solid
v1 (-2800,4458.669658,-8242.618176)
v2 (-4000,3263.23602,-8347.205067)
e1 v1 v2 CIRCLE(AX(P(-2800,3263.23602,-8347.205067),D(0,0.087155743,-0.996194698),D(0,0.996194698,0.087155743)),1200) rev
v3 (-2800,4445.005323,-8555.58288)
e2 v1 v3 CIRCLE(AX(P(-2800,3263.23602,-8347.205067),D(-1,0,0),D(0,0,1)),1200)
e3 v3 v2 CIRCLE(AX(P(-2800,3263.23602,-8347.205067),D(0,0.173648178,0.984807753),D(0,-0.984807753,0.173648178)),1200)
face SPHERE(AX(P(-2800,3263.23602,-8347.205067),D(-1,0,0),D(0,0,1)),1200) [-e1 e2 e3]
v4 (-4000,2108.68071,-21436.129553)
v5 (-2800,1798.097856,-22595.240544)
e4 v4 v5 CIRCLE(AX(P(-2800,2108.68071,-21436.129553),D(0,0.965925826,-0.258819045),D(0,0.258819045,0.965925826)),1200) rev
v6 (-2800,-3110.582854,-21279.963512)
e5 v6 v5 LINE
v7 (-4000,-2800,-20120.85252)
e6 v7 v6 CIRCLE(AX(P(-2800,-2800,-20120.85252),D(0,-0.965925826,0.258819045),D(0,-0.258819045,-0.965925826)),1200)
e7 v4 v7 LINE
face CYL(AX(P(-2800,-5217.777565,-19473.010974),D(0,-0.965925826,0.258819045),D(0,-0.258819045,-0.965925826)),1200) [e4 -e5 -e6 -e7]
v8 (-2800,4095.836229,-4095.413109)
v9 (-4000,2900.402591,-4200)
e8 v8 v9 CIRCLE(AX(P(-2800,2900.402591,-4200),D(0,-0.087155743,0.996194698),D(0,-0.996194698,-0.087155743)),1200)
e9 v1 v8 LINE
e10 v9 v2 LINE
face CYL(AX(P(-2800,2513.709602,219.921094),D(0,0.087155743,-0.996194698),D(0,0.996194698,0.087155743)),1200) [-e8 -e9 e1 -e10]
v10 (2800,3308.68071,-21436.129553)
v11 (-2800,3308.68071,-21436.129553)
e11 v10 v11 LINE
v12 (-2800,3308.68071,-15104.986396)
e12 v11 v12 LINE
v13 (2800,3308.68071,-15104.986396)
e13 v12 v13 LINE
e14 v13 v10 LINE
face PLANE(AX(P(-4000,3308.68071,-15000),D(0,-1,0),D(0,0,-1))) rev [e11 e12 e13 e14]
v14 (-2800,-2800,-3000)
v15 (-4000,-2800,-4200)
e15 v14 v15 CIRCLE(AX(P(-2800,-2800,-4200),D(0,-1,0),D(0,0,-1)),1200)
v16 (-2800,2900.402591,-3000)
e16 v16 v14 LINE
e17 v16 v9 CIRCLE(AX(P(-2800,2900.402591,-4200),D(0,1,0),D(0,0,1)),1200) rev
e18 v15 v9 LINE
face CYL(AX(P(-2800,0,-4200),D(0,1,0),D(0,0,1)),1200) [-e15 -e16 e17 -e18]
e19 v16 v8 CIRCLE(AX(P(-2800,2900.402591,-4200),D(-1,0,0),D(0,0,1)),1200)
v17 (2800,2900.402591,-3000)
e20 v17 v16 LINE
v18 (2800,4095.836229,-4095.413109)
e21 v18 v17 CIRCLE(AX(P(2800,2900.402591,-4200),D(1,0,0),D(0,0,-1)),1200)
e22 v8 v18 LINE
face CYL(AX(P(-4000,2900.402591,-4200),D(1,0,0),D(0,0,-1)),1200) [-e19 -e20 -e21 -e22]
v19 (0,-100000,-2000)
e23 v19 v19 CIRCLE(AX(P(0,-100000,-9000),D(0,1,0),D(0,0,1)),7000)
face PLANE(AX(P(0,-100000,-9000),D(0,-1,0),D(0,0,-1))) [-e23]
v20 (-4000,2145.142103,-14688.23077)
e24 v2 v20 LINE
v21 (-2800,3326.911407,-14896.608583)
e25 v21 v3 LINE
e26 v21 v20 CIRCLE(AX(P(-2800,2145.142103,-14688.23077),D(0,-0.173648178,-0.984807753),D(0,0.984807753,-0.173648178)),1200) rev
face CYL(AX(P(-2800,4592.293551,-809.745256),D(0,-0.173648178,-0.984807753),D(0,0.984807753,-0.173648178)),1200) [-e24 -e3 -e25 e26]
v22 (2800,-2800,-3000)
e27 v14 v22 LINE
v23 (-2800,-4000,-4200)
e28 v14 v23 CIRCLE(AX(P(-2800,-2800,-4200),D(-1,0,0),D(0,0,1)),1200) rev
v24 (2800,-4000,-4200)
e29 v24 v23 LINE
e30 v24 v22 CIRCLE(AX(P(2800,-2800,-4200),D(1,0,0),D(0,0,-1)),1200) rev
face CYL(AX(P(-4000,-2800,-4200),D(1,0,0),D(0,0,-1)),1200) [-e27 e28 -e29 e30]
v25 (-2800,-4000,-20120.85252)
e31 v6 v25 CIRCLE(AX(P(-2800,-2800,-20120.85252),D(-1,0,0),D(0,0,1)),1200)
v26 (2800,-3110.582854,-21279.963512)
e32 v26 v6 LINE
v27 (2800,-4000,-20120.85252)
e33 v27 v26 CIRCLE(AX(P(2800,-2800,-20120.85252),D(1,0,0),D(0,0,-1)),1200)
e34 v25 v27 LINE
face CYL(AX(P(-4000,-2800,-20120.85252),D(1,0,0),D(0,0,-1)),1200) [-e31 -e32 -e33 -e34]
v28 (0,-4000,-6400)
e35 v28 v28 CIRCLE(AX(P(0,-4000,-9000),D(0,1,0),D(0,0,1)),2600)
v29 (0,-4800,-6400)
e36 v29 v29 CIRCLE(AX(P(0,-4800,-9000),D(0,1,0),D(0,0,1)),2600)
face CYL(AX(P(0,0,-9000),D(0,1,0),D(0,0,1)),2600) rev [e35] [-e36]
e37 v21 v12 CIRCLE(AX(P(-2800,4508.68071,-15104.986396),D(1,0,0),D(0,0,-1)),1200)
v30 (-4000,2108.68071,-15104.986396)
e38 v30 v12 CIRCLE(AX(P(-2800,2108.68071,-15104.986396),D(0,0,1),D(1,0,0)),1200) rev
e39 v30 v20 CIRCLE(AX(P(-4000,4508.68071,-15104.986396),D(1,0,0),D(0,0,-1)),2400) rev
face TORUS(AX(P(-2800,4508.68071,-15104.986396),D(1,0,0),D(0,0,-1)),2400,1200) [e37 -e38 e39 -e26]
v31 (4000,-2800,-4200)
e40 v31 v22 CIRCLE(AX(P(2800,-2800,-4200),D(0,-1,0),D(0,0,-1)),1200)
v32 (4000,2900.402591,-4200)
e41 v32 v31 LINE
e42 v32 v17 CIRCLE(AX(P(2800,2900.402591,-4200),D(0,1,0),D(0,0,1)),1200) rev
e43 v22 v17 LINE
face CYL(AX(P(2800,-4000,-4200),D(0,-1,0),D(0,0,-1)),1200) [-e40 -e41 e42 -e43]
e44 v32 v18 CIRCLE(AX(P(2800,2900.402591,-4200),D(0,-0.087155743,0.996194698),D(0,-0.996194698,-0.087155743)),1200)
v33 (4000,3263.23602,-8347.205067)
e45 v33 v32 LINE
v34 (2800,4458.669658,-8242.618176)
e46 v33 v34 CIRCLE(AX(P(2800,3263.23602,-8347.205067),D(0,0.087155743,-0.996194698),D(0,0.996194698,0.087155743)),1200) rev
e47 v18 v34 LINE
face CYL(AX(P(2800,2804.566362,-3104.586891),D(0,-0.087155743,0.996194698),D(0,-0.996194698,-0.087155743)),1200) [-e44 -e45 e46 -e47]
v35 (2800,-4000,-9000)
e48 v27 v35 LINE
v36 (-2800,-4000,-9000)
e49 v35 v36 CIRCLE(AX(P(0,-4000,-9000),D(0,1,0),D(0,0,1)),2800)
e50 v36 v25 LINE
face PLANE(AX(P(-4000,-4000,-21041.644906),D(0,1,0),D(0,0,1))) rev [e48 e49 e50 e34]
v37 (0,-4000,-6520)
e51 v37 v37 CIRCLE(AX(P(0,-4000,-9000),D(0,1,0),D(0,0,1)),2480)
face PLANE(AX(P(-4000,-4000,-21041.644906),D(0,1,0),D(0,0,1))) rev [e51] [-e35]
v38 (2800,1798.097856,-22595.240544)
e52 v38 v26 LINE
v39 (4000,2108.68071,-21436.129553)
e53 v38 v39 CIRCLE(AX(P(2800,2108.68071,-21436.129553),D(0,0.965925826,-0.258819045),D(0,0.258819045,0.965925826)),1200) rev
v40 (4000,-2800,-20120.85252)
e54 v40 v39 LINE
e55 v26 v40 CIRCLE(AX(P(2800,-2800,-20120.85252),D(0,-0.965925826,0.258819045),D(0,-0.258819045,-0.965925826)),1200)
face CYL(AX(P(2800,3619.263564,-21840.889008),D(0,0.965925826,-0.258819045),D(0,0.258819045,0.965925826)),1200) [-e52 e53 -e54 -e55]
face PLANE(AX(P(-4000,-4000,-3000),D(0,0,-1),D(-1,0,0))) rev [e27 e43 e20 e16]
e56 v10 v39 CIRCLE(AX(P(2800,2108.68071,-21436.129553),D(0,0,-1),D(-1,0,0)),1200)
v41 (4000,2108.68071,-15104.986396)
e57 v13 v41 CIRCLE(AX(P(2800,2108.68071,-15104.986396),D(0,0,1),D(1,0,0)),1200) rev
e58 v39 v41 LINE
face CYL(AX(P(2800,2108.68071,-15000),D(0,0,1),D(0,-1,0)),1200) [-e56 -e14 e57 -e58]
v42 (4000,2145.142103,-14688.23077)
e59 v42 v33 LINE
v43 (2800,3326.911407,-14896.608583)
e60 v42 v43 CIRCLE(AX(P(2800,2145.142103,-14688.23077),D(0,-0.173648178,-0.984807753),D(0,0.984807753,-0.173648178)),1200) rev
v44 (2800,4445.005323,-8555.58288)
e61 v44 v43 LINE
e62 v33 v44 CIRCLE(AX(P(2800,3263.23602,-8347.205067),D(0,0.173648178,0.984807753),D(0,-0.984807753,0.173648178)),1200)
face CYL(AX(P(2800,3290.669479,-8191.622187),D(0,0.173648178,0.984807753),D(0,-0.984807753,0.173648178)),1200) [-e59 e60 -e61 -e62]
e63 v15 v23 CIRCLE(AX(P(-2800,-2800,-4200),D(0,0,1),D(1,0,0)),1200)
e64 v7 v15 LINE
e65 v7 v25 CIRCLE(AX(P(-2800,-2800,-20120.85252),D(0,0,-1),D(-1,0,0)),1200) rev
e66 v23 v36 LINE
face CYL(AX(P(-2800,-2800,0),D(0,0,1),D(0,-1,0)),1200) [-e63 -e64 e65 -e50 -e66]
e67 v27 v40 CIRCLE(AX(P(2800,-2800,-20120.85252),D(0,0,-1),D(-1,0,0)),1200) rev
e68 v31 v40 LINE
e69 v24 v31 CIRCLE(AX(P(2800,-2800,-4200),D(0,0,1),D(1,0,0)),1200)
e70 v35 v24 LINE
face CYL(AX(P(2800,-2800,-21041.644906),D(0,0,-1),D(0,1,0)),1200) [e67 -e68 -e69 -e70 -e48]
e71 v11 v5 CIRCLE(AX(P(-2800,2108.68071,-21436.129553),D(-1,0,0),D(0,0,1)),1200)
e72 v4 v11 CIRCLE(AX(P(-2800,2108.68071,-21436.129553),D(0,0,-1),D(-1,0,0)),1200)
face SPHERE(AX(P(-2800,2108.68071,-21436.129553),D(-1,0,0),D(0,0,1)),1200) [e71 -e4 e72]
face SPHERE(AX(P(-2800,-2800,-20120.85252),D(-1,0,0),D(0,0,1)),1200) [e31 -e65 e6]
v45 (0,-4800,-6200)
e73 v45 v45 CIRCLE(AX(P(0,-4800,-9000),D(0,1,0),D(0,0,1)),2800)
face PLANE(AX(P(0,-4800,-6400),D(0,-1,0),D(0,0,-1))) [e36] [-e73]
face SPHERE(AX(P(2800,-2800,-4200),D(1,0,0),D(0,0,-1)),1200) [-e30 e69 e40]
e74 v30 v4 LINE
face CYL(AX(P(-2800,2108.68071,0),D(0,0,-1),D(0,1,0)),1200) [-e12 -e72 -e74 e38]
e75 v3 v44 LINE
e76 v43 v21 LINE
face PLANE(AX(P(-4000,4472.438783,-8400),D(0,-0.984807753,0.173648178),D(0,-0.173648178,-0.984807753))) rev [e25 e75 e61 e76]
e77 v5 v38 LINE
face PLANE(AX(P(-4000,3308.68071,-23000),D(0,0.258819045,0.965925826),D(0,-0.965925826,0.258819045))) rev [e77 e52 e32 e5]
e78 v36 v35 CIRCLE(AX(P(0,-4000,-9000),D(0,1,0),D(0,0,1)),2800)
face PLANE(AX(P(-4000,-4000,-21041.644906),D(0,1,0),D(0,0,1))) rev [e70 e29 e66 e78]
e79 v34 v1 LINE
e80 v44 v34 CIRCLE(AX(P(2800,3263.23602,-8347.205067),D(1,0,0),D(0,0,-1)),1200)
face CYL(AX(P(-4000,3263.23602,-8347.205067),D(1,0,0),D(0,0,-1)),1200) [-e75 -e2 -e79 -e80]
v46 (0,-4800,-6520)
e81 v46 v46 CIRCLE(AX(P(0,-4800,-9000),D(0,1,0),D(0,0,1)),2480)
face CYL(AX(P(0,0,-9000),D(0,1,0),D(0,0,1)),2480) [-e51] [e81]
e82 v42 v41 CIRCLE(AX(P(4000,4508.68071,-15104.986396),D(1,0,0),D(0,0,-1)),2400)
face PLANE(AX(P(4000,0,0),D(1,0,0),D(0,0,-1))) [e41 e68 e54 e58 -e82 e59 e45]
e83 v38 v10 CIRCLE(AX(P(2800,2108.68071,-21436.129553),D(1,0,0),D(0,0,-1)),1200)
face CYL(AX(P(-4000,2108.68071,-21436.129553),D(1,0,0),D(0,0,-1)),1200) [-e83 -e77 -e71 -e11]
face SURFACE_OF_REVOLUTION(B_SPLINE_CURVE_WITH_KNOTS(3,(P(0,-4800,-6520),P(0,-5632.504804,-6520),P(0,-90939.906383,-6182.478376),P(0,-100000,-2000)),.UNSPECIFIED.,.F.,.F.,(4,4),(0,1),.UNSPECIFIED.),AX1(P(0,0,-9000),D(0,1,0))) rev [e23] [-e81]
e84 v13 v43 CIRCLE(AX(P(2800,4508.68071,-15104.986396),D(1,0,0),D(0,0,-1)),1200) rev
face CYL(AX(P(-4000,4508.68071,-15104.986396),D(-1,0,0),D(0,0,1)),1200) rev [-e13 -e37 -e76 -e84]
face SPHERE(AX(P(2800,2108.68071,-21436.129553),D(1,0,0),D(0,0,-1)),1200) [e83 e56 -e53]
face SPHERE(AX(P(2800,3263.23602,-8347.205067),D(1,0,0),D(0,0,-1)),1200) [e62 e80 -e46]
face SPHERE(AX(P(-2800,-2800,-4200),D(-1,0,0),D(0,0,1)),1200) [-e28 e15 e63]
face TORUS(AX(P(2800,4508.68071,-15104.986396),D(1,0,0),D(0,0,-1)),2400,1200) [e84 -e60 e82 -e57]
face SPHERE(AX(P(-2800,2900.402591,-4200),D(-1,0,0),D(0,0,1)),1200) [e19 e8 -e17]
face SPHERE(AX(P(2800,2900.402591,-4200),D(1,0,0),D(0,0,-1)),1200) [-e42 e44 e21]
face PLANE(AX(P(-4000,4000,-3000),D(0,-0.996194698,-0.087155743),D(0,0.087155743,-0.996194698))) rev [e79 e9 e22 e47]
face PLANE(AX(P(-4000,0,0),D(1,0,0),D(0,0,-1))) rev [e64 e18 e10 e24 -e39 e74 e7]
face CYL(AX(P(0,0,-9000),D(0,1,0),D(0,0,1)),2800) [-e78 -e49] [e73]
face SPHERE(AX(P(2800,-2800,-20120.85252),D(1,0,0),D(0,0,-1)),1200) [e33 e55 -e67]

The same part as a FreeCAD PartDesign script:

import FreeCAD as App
import Part
import Sketcher

V = App.Vector
Q = App.Units.Quantity


def add_polygon(sketch, points):
    """Adds a closed chain of lines whose ends are joined by coincident constraints."""
    first, n = sketch.GeometryCount, len(points)
    for a, b in zip(points, points[1:] + points[:1]):
        sketch.addGeometry(Part.LineSegment(App.Vector(*a, 0), App.Vector(*b, 0)), False)
    for i in range(n):
        sketch.addConstraint(Sketcher.Constraint("Coincident", first + i, 2, first + (i + 1) % n, 1))

doc = App.newDocument("Part")
params = doc.addObject("Spreadsheet::Sheet", "Params")
for row, (alias, value) in enumerate([
    ("sketch1_width", "8000 mm"),
    ("pad1_length", "4000 mm"),
    ("pad1_length2", "4000 mm"),
    ("fillet_radius", "1200 mm"),
    ("sketch2_width", "2000 mm"),
    ("sketch2_width2", "800 mm"),
    ("sketch2_height", "2800 mm"),
    ("sketch2_height2", "200 mm"),
    ("sketch2_height3", "120 mm"),
    ("revolution_angle", "360 deg"),
], start=1):
    params.set(f"A{row}", alias)
    params.set(f"B{row}", "=" + value)
    params.setAlias(f"B{row}", alias)

body = doc.addObject("PartDesign::Body", "Body")

# Sketch on YZ plane
sketch1 = doc.addObject("Sketcher::SketchObject", "Sketch")
body.addObject(sketch1)
sketch1.AttachmentSupport = (doc.YZ_Plane, [""])
sketch1.MapMode = "FlatFace"
add_polygon(sketch1, [(4000, -3000), (-4000, -3000), (-4000, -21042), (3309, -23000), (3309, -15000), (4472, -8400)])  # lines 0-5
sketch1.addConstraint(Sketcher.Constraint("Horizontal", 0))
sketch1.addConstraint(Sketcher.Constraint("Vertical", 1))
sketch1.addConstraint(Sketcher.Constraint("Vertical", 3))
sketch1.addConstraint(Sketcher.Constraint("Equal", 0, 3))
sketch1.addConstraint(Sketcher.Constraint("DistanceX", 0, 2, 0, 1, 8000.0))
sketch1.addConstraint(Sketcher.Constraint("Angle", 2, Q("-15 deg")))
sketch1.addConstraint(Sketcher.Constraint("Angle", 4, Q("80 deg")))
sketch1.addConstraint(Sketcher.Constraint("Angle", 5, Q("95 deg")))
sketch1.addConstraint(Sketcher.Constraint("DistanceX", 0, 2, -1, 1, 4000.0))
sketch1.addConstraint(Sketcher.Constraint("DistanceY", 0, 2, -1, 1, 3000.0))
sketch1.addConstraint(Sketcher.Constraint("DistanceY", 2, 2, -1, 1, 23000.0))
sketch1.addConstraint(Sketcher.Constraint("DistanceY", 4, 2, -1, 1, 8400.0))
sketch1.setExpression("Constraints[10]", "Params.sketch1_width")
pad1 = doc.addObject("PartDesign::Pad", "Pad")
body.addObject(pad1)
pad1.Profile = sketch1
pad1.Type = "TwoLengths"
pad1.setExpression("Length", "Params.pad1_length")
pad1.setExpression("Length2", "Params.pad1_length2")
doc.recompute()

fillet = doc.addObject("PartDesign::Fillet", "Fillet")
body.addObject(fillet)
fillet.Base = (pad1, ["Edge1"])
fillet.UseAllEdges = True
fillet.setExpression("Radius", "Params.fillet_radius")

# Sketch on YZ plane
sketch2 = doc.addObject("Sketcher::SketchObject", "Sketch001")
body.addObject(sketch2)
sketch2.AttachmentSupport = (doc.YZ_Plane, [""])
sketch2.MapMode = "FlatFace"
sketch2.addGeometry(Part.LineSegment(V(-2800, -9000, 0), V(-2800, -6200, 0)), False)
sketch2.addGeometry(Part.LineSegment(V(-2800, -6200, 0), V(-4800, -6200, 0)), False)
sketch2.addGeometry(Part.LineSegment(V(-4800, -6200, 0), V(-4800, -6400, 0)), False)
sketch2.addGeometry(Part.LineSegment(V(-4800, -6400, 0), V(-4000, -6400, 0)), False)
sketch2.addGeometry(Part.LineSegment(V(-4000, -6400, 0), V(-4000, -6520, 0)), False)
sketch2.addGeometry(Part.LineSegment(V(-4000, -6520, 0), V(-4800, -6520, 0)), False)
sketch2.addGeometry(Part.BSplineCurve([V(-4800, -6520, 0), V(-5632.504804, -6520, 0), V(-90939.906383, -6182.478376, 0), V(-100000, -2000, 0)], [4, 4], [0, 1], False, 3, [1, 1, 1, 1], False), False)
sketch2.addGeometry(Part.LineSegment(V(-100000, -2000, 0), V(-100000, -9000, 0)), False)
sketch2.addGeometry(Part.LineSegment(V(-100000, -9000, 0), V(-2800, -9000, 0)), False)
sketch2.addGeometry(Part.LineSegment(V(-2800, -9000, 0), V(-100000, -9000, 0)), True)  # axis
sketch2.addConstraint(Sketcher.Constraint("Block", 6))
sketch2.addConstraint(Sketcher.Constraint("Coincident", 0, 2, 1, 1))
sketch2.addConstraint(Sketcher.Constraint("Coincident", 1, 2, 2, 1))
sketch2.addConstraint(Sketcher.Constraint("Coincident", 2, 2, 3, 1))
sketch2.addConstraint(Sketcher.Constraint("Coincident", 3, 2, 4, 1))
sketch2.addConstraint(Sketcher.Constraint("Coincident", 4, 2, 5, 1))
sketch2.addConstraint(Sketcher.Constraint("Coincident", 5, 2, 6, 1))
sketch2.addConstraint(Sketcher.Constraint("Coincident", 6, 2, 7, 1))
sketch2.addConstraint(Sketcher.Constraint("Coincident", 7, 2, 8, 1))
sketch2.addConstraint(Sketcher.Constraint("Coincident", 8, 2, 0, 1))
sketch2.addConstraint(Sketcher.Constraint("Vertical", 0))
sketch2.addConstraint(Sketcher.Constraint("Horizontal", 1))
sketch2.addConstraint(Sketcher.Constraint("Vertical", 2))
sketch2.addConstraint(Sketcher.Constraint("Horizontal", 3))
sketch2.addConstraint(Sketcher.Constraint("Vertical", 4))
sketch2.addConstraint(Sketcher.Constraint("Horizontal", 5))
sketch2.addConstraint(Sketcher.Constraint("Vertical", 7))
sketch2.addConstraint(Sketcher.Constraint("Horizontal", 8))
sketch2.addConstraint(Sketcher.Constraint("Horizontal", 9))
sketch2.addConstraint(Sketcher.Constraint("Coincident", 9, 1, 8, 2))
sketch2.addConstraint(Sketcher.Constraint("Vertical", 2, 2, 5, 2))
sketch2.addConstraint(Sketcher.Constraint("Equal", 8, 9))
sketch2.addConstraint(Sketcher.Constraint("DistanceX", 1, 2, 1, 1, 2000.0))
sketch2.addConstraint(Sketcher.Constraint("DistanceX", 3, 1, 3, 2, 800.0))
sketch2.addConstraint(Sketcher.Constraint("DistanceY", 0, 1, 0, 2, 2800.0))
sketch2.addConstraint(Sketcher.Constraint("DistanceY", 2, 2, 2, 1, 200.0))
sketch2.addConstraint(Sketcher.Constraint("DistanceY", 4, 2, 4, 1, 120.0))
sketch2.setExpression("Constraints[22]", "Params.sketch2_width")
sketch2.setExpression("Constraints[23]", "Params.sketch2_width2")
sketch2.setExpression("Constraints[24]", "Params.sketch2_height")
sketch2.setExpression("Constraints[25]", "Params.sketch2_height2")
sketch2.setExpression("Constraints[26]", "Params.sketch2_height3")
revolution = doc.addObject("PartDesign::Revolution", "Revolution")
body.addObject(revolution)
revolution.Profile = sketch2
revolution.ReferenceAxis = (sketch2, ["Axis0"])
revolution.setExpression("Angle", "Params.revolution_angle")

doc.recompute()
